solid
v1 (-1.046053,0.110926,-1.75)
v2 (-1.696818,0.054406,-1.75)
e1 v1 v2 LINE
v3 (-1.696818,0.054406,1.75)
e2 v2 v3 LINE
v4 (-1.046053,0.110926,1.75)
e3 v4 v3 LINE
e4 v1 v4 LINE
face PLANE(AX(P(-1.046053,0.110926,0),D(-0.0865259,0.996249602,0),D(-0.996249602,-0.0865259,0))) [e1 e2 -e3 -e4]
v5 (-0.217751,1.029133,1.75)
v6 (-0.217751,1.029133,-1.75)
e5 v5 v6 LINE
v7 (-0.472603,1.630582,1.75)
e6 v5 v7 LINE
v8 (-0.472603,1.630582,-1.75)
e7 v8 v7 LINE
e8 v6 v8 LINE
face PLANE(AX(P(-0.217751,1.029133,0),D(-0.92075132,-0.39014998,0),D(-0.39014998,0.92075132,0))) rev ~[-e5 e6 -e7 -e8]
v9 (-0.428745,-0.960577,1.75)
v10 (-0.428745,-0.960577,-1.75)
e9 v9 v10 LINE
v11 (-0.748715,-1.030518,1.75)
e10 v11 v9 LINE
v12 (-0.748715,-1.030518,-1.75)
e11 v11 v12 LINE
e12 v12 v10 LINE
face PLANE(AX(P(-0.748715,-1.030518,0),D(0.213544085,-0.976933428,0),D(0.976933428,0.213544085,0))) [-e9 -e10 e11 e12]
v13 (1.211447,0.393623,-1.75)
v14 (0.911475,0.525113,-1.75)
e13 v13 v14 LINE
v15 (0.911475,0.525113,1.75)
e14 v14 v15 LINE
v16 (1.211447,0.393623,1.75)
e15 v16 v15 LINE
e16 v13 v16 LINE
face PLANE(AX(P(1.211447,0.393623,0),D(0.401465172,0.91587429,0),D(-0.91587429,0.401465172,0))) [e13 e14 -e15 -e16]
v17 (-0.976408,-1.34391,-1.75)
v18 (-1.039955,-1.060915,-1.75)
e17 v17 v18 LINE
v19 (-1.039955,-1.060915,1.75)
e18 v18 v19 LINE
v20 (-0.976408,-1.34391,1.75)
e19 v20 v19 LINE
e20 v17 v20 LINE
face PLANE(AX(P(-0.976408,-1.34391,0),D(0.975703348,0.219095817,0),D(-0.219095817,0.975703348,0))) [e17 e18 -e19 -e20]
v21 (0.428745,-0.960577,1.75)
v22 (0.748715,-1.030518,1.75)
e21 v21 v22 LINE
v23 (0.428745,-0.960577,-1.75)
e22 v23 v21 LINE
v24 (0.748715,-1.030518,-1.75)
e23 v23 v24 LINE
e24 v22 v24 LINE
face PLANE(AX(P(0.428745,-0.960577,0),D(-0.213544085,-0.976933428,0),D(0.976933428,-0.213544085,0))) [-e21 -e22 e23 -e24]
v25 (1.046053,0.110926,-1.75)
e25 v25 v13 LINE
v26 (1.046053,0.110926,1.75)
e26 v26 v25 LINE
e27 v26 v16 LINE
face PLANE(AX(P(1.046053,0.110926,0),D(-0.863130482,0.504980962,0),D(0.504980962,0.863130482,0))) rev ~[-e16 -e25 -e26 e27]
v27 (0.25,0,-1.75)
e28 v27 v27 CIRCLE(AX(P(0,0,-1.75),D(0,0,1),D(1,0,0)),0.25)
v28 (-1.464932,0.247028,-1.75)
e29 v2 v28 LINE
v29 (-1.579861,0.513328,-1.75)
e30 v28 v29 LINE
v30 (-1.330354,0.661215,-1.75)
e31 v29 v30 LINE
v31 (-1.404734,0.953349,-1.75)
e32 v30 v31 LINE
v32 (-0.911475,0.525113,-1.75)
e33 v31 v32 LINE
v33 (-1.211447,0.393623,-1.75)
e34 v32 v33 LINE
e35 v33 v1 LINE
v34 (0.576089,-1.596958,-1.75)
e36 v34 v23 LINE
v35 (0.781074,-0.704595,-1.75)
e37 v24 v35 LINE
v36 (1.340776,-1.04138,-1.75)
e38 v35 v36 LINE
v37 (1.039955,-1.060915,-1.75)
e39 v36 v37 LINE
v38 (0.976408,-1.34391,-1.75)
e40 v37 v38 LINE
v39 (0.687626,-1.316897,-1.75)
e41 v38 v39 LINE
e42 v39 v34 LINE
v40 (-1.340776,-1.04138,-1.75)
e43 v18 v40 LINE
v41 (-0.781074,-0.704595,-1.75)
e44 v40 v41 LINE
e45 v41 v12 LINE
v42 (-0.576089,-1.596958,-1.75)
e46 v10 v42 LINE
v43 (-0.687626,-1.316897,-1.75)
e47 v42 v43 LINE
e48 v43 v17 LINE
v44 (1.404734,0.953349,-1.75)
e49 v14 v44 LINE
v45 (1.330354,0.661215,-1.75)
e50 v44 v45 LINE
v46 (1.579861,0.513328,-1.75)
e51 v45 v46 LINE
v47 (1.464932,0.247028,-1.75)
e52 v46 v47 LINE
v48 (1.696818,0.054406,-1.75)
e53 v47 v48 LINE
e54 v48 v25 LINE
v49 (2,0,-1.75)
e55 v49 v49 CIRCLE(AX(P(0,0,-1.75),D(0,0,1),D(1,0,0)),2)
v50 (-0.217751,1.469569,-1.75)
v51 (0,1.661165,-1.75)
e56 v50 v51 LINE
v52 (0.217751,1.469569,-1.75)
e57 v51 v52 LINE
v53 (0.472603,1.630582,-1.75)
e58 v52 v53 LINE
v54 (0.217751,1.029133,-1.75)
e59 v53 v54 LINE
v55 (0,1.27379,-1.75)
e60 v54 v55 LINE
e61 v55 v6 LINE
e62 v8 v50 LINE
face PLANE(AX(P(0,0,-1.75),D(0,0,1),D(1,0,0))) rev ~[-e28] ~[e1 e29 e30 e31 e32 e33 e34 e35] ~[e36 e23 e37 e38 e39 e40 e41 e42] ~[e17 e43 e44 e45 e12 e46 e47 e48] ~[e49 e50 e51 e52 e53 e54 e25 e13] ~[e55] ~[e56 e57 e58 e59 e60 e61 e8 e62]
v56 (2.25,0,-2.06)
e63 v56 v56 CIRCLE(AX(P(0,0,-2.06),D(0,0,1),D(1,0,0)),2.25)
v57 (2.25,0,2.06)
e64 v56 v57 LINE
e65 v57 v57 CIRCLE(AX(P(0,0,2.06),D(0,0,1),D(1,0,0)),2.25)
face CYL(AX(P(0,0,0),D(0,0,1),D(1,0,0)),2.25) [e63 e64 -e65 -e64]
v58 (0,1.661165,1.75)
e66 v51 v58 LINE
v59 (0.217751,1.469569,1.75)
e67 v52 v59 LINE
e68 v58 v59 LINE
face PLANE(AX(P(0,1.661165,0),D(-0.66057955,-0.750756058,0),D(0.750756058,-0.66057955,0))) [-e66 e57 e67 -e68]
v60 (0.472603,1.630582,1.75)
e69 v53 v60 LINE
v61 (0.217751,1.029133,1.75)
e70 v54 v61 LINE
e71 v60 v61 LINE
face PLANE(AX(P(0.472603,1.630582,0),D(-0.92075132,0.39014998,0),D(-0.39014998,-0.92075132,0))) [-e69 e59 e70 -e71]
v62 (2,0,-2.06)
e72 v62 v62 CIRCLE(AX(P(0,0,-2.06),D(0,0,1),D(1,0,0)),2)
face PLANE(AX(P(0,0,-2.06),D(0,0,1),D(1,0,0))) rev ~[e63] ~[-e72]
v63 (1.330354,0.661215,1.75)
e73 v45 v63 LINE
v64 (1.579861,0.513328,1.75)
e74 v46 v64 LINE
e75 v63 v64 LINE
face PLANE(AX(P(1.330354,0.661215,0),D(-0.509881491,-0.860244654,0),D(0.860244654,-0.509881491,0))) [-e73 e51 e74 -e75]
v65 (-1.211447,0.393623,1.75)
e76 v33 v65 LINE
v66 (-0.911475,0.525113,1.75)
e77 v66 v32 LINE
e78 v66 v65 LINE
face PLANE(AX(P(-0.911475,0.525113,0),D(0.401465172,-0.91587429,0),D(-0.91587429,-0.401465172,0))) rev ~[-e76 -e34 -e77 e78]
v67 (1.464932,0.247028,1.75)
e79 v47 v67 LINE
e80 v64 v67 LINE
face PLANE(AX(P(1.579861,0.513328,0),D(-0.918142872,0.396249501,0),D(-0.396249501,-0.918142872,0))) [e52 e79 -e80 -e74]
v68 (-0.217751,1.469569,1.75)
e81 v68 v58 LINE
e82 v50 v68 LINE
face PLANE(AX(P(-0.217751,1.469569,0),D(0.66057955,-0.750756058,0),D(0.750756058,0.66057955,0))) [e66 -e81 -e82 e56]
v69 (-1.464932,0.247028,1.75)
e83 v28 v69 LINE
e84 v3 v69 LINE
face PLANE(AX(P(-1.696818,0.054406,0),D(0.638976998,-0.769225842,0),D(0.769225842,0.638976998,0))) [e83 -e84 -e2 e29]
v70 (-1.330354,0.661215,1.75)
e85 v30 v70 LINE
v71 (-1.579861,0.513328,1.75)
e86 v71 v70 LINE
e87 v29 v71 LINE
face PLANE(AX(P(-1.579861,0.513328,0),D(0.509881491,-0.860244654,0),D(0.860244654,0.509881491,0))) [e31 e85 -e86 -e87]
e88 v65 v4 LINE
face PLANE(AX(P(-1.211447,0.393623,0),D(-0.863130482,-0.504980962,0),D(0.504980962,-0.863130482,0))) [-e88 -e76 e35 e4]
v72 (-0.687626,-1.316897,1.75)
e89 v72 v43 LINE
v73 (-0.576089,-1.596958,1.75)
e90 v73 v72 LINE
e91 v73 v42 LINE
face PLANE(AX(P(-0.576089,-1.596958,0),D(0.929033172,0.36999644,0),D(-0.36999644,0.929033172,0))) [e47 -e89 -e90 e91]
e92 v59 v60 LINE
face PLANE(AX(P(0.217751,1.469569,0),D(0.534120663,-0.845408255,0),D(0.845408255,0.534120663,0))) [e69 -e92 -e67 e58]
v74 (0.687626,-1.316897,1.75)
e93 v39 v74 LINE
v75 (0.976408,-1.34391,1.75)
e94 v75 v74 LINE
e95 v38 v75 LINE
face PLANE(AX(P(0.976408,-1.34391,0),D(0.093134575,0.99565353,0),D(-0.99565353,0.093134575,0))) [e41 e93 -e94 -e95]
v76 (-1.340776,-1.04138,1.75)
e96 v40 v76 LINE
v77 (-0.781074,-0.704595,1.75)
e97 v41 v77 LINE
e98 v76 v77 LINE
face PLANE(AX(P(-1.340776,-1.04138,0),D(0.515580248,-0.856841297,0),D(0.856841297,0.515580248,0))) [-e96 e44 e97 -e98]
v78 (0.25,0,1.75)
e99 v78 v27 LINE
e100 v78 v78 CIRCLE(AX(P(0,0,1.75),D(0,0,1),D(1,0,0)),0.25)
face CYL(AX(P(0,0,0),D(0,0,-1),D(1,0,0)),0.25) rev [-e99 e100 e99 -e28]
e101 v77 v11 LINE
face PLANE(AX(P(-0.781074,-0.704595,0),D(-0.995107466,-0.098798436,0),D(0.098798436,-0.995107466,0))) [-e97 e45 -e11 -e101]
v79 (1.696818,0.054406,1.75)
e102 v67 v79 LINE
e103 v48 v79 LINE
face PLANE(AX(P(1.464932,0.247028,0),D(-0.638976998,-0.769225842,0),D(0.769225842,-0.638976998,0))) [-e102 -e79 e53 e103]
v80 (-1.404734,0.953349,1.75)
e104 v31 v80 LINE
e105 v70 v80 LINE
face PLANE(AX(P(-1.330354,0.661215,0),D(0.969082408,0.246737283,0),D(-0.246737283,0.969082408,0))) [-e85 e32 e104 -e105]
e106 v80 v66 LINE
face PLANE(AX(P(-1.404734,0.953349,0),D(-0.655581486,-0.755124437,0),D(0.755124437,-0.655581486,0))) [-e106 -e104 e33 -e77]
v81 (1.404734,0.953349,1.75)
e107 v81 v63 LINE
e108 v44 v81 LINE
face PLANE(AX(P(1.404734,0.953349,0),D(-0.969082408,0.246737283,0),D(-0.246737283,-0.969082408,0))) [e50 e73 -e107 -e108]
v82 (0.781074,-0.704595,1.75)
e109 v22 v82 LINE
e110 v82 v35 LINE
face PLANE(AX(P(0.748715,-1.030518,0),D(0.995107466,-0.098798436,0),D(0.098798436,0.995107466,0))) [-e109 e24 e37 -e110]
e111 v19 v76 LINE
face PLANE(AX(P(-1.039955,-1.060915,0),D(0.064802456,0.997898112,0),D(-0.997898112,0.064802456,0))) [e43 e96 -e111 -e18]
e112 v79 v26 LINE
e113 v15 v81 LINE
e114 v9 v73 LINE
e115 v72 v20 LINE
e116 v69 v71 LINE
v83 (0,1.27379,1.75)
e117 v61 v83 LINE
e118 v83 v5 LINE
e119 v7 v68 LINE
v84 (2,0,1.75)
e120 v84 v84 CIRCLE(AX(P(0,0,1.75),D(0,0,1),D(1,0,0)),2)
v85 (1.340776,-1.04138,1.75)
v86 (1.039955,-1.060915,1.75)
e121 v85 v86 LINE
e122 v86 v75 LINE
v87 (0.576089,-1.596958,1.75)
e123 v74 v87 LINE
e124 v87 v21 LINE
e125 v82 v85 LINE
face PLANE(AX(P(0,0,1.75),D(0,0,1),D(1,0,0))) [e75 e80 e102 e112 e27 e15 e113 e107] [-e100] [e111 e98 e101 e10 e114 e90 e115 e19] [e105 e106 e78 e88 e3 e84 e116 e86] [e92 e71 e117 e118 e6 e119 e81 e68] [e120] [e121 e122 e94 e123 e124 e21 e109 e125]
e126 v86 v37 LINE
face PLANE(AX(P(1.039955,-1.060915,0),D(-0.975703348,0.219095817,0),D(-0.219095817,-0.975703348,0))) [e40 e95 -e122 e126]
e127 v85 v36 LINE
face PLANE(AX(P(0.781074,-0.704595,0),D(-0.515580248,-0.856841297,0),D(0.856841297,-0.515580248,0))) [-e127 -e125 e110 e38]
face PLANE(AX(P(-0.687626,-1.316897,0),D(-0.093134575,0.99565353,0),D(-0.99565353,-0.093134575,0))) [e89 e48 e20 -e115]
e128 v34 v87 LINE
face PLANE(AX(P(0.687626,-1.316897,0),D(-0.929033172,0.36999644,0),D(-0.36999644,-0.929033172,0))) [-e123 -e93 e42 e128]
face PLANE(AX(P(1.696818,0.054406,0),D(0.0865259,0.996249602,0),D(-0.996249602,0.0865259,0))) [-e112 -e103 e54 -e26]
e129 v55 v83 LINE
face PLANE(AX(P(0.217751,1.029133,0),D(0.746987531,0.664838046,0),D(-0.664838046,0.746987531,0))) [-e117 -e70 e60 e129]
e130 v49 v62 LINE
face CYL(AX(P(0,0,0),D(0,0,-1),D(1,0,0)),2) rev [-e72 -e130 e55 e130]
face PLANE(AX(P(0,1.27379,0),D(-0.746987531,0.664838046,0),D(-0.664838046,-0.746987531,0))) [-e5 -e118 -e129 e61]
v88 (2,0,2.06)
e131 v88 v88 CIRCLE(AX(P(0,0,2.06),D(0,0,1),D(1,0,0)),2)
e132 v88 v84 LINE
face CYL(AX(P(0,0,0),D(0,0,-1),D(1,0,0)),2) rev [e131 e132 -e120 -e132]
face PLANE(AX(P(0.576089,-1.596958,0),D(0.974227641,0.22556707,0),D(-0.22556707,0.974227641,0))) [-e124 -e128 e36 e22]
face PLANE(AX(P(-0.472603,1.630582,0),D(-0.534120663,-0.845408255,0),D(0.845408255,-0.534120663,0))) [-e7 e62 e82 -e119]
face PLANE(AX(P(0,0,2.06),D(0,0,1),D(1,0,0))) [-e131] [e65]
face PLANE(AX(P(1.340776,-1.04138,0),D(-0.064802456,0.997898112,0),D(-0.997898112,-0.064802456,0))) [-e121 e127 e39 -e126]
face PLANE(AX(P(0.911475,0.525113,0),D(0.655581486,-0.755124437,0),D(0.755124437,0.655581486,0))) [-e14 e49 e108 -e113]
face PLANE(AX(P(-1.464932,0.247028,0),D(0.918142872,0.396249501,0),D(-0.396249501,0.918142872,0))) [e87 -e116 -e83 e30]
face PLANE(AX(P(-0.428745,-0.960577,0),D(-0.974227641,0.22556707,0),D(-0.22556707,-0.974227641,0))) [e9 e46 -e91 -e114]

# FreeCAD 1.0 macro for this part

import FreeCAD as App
import Part
import Sketcher
Q = App.Units.Quantity


def add_polygon(sketch, points):
    """Adds a closed chain of lines whose ends are joined by coincident constraints."""
    first, n = sketch.GeometryCount, len(points)
    for a, b in zip(points, points[1:] + points[:1]):
        sketch.addGeometry(Part.LineSegment(App.Vector(*a, 0), App.Vector(*b, 0)), False)
    for i in range(n):
        sketch.addConstraint(Sketcher.Constraint("Coincident", first + i, 2, first + (i + 1) % n, 1))

doc = App.newDocument("Part")
body = doc.addObject("PartDesign::Body", "Body")

# Sketch on XY plane
sketch1 = body.newObject("Sketcher::SketchObject", "Sketch")
sketch1.AttachmentSupport = (doc.getObject("XY_Plane"), [""])
sketch1.MapMode = "FlatFace"
sketch1.addGeometry(Part.Circle(App.Vector(0, 0, 0), App.Vector(0, 0, 1), 2), False)  # 0
add_polygon(sketch1, [(-0.69, -1.32), (-0.98, -1.34), (-1.04, -1.06), (-1.34, -1.04), (-0.78, -0.7), (-0.75, -1.03), (-0.43, -0.96), (-0.58, -1.6)])  # lines 1-8
add_polygon(sketch1, [(1.04, -1.06), (0.98, -1.34), (0.69, -1.32), (0.58, -1.6), (0.43, -0.96), (0.75, -1.03), (0.78, -0.7), (1.34, -1.04)])  # lines 9-16
sketch1.addGeometry(Part.Circle(App.Vector(0, 0, 0), App.Vector(0, 0, 1), 0.25), False)  # 17
add_polygon(sketch1, [(-1.46, 0.25), (-1.58, 0.51), (-1.33, 0.66), (-1.4, 0.95), (-0.91, 0.53), (-1.21, 0.39), (-1.05, 0.11), (-1.7, 0.05)])  # lines 18-25
add_polygon(sketch1, [(0, 1.27), (-0.22, 1.03), (-0.47, 1.63), (-0.22, 1.47), (0, 1.66), (0.22, 1.47), (0.47, 1.63), (0.22, 1.03)])  # lines 26-33
add_polygon(sketch1, [(1.33, 0.66), (1.58, 0.51), (1.46, 0.25), (1.7, 0.05), (1.05, 0.11), (1.21, 0.39), (0.91, 0.53), (1.4, 0.95)])  # lines 34-41
sketch1.addConstraint([
    Sketcher.Constraint("Coincident", 0, 3, -1, 1),
    Sketcher.Constraint("Coincident", 17, 3, -1, 1),
    Sketcher.Constraint("Symmetric", 1, 2, 9, 2, -2),
    Sketcher.Constraint("Symmetric", 8, 2, 10, 2, -2),
    Sketcher.Constraint("Symmetric", 7, 2, 11, 2, -2),
    Sketcher.Constraint("Symmetric", 6, 2, 12, 2, -2),
    Sketcher.Constraint("Symmetric", 5, 2, 13, 2, -2),
    Sketcher.Constraint("Symmetric", 4, 2, 14, 2, -2),
    Sketcher.Constraint("Symmetric", 3, 2, 15, 2, -2),
    Sketcher.Constraint("Symmetric", 2, 2, 16, 2, -2),
    Sketcher.Constraint("Symmetric", 28, 2, 30, 2, -2),
    Sketcher.Constraint("Symmetric", 27, 2, 31, 2, -2),
    Sketcher.Constraint("Symmetric", 26, 2, 32, 2, -2),
    Sketcher.Constraint("Symmetric", 18, 2, 34, 2, -2),
    Sketcher.Constraint("Symmetric", 25, 2, 35, 2, -2),
    Sketcher.Constraint("Symmetric", 24, 2, 36, 2, -2),
    Sketcher.Constraint("Symmetric", 23, 2, 37, 2, -2),
    Sketcher.Constraint("Symmetric", 22, 2, 38, 2, -2),
    Sketcher.Constraint("Symmetric", 21, 2, 39, 2, -2),
    Sketcher.Constraint("Symmetric", 20, 2, 40, 2, -2),
    Sketcher.Constraint("Symmetric", 19, 2, 41, 2, -2),
    Sketcher.Constraint("PointOnObject", 29, 2, -2),
    Sketcher.Constraint("PointOnObject", 33, 2, -2),
    Sketcher.Constraint("Vertical", 26, 2, 28, 2),
    Sketcher.Constraint("Equal", 1, 2),
    Sketcher.Constraint("Equal", 5, 6),
    Sketcher.Constraint("Equal", 4, 7),
    Sketcher.Constraint("Equal", 3, 8),
    Sketcher.Constraint("Equal", 10, 18),
    Sketcher.Constraint("Equal", 18, 19),
    Sketcher.Constraint("Equal", 16, 20),
    Sketcher.Constraint("Equal", 15, 21),
    Sketcher.Constraint("Equal", 14, 22),
    Sketcher.Constraint("Equal", 22, 23),
    Sketcher.Constraint("Equal", 21, 24),
    Sketcher.Constraint("Equal", 20, 25),
    Sketcher.Constraint("Equal", 23, 26),
    Sketcher.Constraint("Equal", 24, 27),
    Sketcher.Constraint("Equal", 25, 28),
    Sketcher.Constraint("Equal", 19, 29),
    Sketcher.Constraint("Diameter", 0, Q("4 mm")),
    Sketcher.Constraint("Diameter", 17, Q("0.5 mm")),
    Sketcher.Constraint("Angle", 5, Q("-84.330017 deg")),
    Sketcher.Constraint("DistanceY", 14, 2, 36, 2, Q("0.759001 mm")),
    Sketcher.Constraint("DistanceX", 3, 2, 4, 2, Q("0.559702 mm")),
    Sketcher.Constraint("DistanceY", 21, 2, 19, 2, Q("0.136102 mm")),
    Sketcher.Constraint("DistanceX", 19, 2, 23, 2, Q("0.284301 mm")),
    Sketcher.Constraint("DistanceY", 25, 2, 18, 2, Q("0.2663 mm")),
    Sketcher.Constraint("Distance", 19, Q("0.290042 mm")),
    Sketcher.Constraint("DistanceX", 1, 2, -1, 1, Q("0.976408 mm")),
    Sketcher.Constraint("DistanceY", 1, 2, -1, 1, Q("1.34391 mm")),
    Sketcher.Constraint("DistanceY", 3, 2, -1, 1, Q("1.04138 mm")),
    Sketcher.Constraint("DistanceX", 7, 2, -1, 1, Q("0.576089 mm")),
    Sketcher.Constraint("DistanceY", 7, 2, -1, 1, Q("1.596958 mm")),
    Sketcher.Constraint("DistanceX", 18, 2, -1, 1, Q("1.579861 mm")),
    Sketcher.Constraint("DistanceY", -1, 1, 18, 2, Q("0.513328 mm")),
    Sketcher.Constraint("DistanceY", -1, 1, 20, 2, Q("0.953349 mm")),
    Sketcher.Constraint("DistanceX", 26, 2, -1, 1, Q("0.217751 mm")),
    Sketcher.Constraint("DistanceY", -1, 1, 28, 2, Q("1.469569 mm")),
    Sketcher.Constraint("DistanceY", -1, 1, 33, 2, Q("1.27379 mm")),
    Sketcher.Constraint("DistanceX", 3, 2, 2, 2, Q("0.300821 mm")),
    Sketcher.Constraint("DistanceY", 2, 2, 4, 2, Q("0.35632 mm")),
    Sketcher.Constraint("DistanceX", 2, 2, 5, 2, Q("0.29124 mm")),
    Sketcher.Constraint("DistanceY", 1, 2, 5, 2, Q("0.313392 mm")),
    Sketcher.Constraint("DistanceX", 19, 2, 4, 2, Q("0.54928 mm")),
])
pad1 = body.newObject("PartDesign::Pad", "Pad")
pad1.Profile = sketch1
pad1.Length = 3.5
pad1.Midplane = True

# Sketch on XY plane
sketch2 = body.newObject("Sketcher::SketchObject", "Sketch001")
sketch2.AttachmentSupport = (doc.getObject("XY_Plane"), [""])
sketch2.MapMode = "FlatFace"
sketch2.addGeometry([
    Part.Circle(App.Vector(0, 0, 0), App.Vector(0, 0, 1), 2.2),
    Part.Circle(App.Vector(0, 0, 0), App.Vector(0, 0, 1), 2),
], False)
sketch2.addConstraint([
    Sketcher.Constraint("Coincident", 0, 3, -1, 1),
    Sketcher.Constraint("Coincident", 1, 3, -1, 1),
    Sketcher.Constraint("Diameter", 1, Q("4 mm")),
    Sketcher.Constraint("Diameter", 0, Q("4.5 mm")),
])
pad2 = body.newObject("PartDesign::Pad", "Pad001")
pad2.Profile = sketch2
pad2.Length = 4.12
pad2.Midplane = True

doc.recompute()
